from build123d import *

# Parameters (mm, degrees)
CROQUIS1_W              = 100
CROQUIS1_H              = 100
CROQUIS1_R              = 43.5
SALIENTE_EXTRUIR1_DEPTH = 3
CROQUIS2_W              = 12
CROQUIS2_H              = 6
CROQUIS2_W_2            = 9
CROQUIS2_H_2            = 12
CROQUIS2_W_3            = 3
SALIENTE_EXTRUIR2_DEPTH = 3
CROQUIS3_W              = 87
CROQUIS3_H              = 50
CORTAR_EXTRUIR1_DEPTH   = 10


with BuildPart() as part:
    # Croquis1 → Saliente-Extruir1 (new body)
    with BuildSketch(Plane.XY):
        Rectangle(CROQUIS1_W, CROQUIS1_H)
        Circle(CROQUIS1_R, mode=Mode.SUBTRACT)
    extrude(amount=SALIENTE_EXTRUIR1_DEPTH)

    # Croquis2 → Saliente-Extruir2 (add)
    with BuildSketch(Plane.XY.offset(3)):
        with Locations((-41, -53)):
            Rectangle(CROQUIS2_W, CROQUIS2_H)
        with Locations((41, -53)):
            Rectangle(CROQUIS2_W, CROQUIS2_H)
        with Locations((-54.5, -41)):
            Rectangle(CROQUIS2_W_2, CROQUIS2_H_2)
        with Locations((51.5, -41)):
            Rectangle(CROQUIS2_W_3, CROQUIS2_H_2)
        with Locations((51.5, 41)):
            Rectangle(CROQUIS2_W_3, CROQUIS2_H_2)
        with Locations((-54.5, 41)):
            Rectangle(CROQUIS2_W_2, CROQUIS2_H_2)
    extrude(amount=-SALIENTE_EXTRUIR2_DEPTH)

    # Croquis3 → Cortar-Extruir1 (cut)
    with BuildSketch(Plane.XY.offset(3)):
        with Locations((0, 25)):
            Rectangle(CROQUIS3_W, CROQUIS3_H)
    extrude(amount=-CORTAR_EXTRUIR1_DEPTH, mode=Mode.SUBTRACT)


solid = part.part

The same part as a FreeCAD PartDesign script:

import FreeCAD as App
import Part
import Sketcher


def add_polygon(sketch, points):
    """Adds a closed chain of lines whose ends are joined by coincident constraints."""
    first, n = sketch.GeometryCount, len(points)
    for a, b in zip(points, points[1:] + points[:1]):
        sketch.addGeometry(Part.LineSegment(App.Vector(*a, 0), App.Vector(*b, 0)), False)
    for i in range(n):
        sketch.addConstraint(Sketcher.Constraint("Coincident", first + i, 2, first + (i + 1) % n, 1))

doc = App.newDocument("Part")
body = doc.addObject("PartDesign::Body", "Body")

sketch1 = doc.addObject("Sketcher::SketchObject", "Sketch")
body.addObject(sketch1)
sketch1.AttachmentSupport = (doc.XY_Plane, [""])
sketch1.MapMode = "FlatFace"
add_polygon(sketch1, [(-50, 50), (-50, -50), (50, -50), (50, 50)])
sketch1.addGeometry(Part.Circle(App.Vector(0, 0, 0), App.Vector(0, 0, 1), 44), False)
sketch1.addConstraint(Sketcher.Constraint("Vertical", 0))
sketch1.addConstraint(Sketcher.Constraint("Horizontal", 1))
sketch1.addConstraint(Sketcher.Constraint("Vertical", 2))
sketch1.addConstraint(Sketcher.Constraint("Horizontal", 3))
sketch1.addConstraint(Sketcher.Constraint("Coincident", 4, 3, -1, 1))
sketch1.addConstraint(Sketcher.Constraint("Symmetric", 0, 2, 2, 2, -1, 1))
sketch1.addConstraint(Sketcher.Constraint("Equal", 3, 0))
sketch1.addConstraint(Sketcher.Constraint("Diameter", 4, 87.0))
sketch1.addConstraint(Sketcher.Constraint("DistanceX", 1, 1, 1, 2, 100.0))
pad1 = doc.addObject("PartDesign::Pad", "Pad")
body.addObject(pad1)
pad1.Profile = sketch1
pad1.Length = 3

sketch2 = doc.addObject("Sketcher::SketchObject", "Sketch001")
body.addObject(sketch2)
sketch2.AttachmentSupport = (doc.XY_Plane, [""])
sketch2.MapMode = "FlatFace"
sketch2.AttachmentOffset = App.Placement(App.Vector(0, 0, 3), App.Rotation())
add_polygon(sketch2, [(-47, -50), (-47, -56), (-35, -56), (-35, -50)])
add_polygon(sketch2, [(35, -50), (35, -56), (47, -56), (47, -50)])
add_polygon(sketch2, [(-59, -35), (-59, -47), (-50, -47), (-50, -35)])
add_polygon(sketch2, [(50, -35), (50, -47), (53, -47), (53, -35)])
add_polygon(sketch2, [(50, 47), (50, 35), (53, 35), (53, 47)])
add_polygon(sketch2, [(-59, 47), (-59, 35), (-50, 35), (-50, 47)])
sketch2.addConstraint(Sketcher.Constraint("Vertical", 0))
sketch2.addConstraint(Sketcher.Constraint("Horizontal", 1))
sketch2.addConstraint(Sketcher.Constraint("Vertical", 2))
sketch2.addConstraint(Sketcher.Constraint("Horizontal", 3))
sketch2.addConstraint(Sketcher.Constraint("Vertical", 4))
sketch2.addConstraint(Sketcher.Constraint("Horizontal", 5))
sketch2.addConstraint(Sketcher.Constraint("Vertical", 6))
sketch2.addConstraint(Sketcher.Constraint("Horizontal", 7))
sketch2.addConstraint(Sketcher.Constraint("Vertical", 8))
sketch2.addConstraint(Sketcher.Constraint("Horizontal", 9))
sketch2.addConstraint(Sketcher.Constraint("Vertical", 10))
sketch2.addConstraint(Sketcher.Constraint("Horizontal", 11))
sketch2.addConstraint(Sketcher.Constraint("Vertical", 12))
sketch2.addConstraint(Sketcher.Constraint("Horizontal", 13))
sketch2.addConstraint(Sketcher.Constraint("Vertical", 14))
sketch2.addConstraint(Sketcher.Constraint("Horizontal", 15))
sketch2.addConstraint(Sketcher.Constraint("Vertical", 16))
sketch2.addConstraint(Sketcher.Constraint("Horizontal", 17))
sketch2.addConstraint(Sketcher.Constraint("Vertical", 18))
sketch2.addConstraint(Sketcher.Constraint("Horizontal", 19))
sketch2.addConstraint(Sketcher.Constraint("Vertical", 20))
sketch2.addConstraint(Sketcher.Constraint("Horizontal", 21))
sketch2.addConstraint(Sketcher.Constraint("Vertical", 22))
sketch2.addConstraint(Sketcher.Constraint("Horizontal", 23))
sketch2.addConstraint(Sketcher.Constraint("Symmetric", 10, 2, 16, 2, -1, 1))
sketch2.addConstraint(Sketcher.Constraint("Symmetric", 15, 2, 21, 2, -1, 1))
sketch2.addConstraint(Sketcher.Constraint("Symmetric", 1, 2, 4, 2, -2))
sketch2.addConstraint(Sketcher.Constraint("Symmetric", 3, 2, 6, 2, -2))
sketch2.addConstraint(Sketcher.Constraint("Symmetric", 9, 2, 12, 2, -2))
sketch2.addConstraint(Sketcher.Constraint("Symmetric", 14, 2, 17, 2, -1))
sketch2.addConstraint(Sketcher.Constraint("Symmetric", 8, 2, 23, 2, -1))
sketch2.addConstraint(Sketcher.Constraint("Horizontal", 19, 2, 22, 2))
sketch2.addConstraint(Sketcher.Constraint("Equal", 7, 8))
sketch2.addConstraint(Sketcher.Constraint("DistanceX", 1, 1, 1, 2, 12.0))
sketch2.addConstraint(Sketcher.Constraint("DistanceX", 9, 1, 9, 2, 9.0))
sketch2.addConstraint(Sketcher.Constraint("DistanceX", 13, 1, 13, 2, 3.0))
sketch2.addConstraint(Sketcher.Constraint("DistanceY", 0, 2, 0, 1, 6.0))
sketch2.addConstraint(Sketcher.Constraint("DistanceX", 0, 2, -1, 1, 47.0))
sketch2.addConstraint(Sketcher.Constraint("DistanceY", 0, 2, -1, 1, 56.0))
sketch2.addConstraint(Sketcher.Constraint("DistanceX", 8, 2, -1, 1, 59.0))
sketch2.addConstraint(Sketcher.Constraint("DistanceY", 8, 2, -1, 1, 47.0))
pad2 = doc.addObject("PartDesign::Pad", "Pad001")
body.addObject(pad2)
pad2.Profile = sketch2
pad2.Length = 3
pad2.Reversed = True

sketch3 = doc.addObject("Sketcher::SketchObject", "Sketch002")
body.addObject(sketch3)
sketch3.AttachmentSupport = (doc.XY_Plane, [""])
sketch3.MapMode = "FlatFace"
sketch3.AttachmentOffset = App.Placement(App.Vector(0, 0, 3), App.Rotation())
add_polygon(sketch3, [(-44, 50), (-44, 0), (44, 0), (44, 50)])
sketch3.addConstraint(Sketcher.Constraint("Vertical", 0))
sketch3.addConstraint(Sketcher.Constraint("Horizontal", 1))
sketch3.addConstraint(Sketcher.Constraint("Vertical", 2))
sketch3.addConstraint(Sketcher.Constraint("Horizontal", 3))
sketch3.addConstraint(Sketcher.Constraint("Symmetric", 0, 2, 1, 2, -1, 1))
sketch3.addConstraint(Sketcher.Constraint("DistanceX", 1, 1, 1, 2, 87.0))
sketch3.addConstraint(Sketcher.Constraint("DistanceY", 0, 2, 0, 1, 50.0))
pocket1 = doc.addObject("PartDesign::Pocket", "Pocket")
body.addObject(pocket1)
pocket1.Profile = sketch3
pocket1.Length = 10

doc.recompute()
